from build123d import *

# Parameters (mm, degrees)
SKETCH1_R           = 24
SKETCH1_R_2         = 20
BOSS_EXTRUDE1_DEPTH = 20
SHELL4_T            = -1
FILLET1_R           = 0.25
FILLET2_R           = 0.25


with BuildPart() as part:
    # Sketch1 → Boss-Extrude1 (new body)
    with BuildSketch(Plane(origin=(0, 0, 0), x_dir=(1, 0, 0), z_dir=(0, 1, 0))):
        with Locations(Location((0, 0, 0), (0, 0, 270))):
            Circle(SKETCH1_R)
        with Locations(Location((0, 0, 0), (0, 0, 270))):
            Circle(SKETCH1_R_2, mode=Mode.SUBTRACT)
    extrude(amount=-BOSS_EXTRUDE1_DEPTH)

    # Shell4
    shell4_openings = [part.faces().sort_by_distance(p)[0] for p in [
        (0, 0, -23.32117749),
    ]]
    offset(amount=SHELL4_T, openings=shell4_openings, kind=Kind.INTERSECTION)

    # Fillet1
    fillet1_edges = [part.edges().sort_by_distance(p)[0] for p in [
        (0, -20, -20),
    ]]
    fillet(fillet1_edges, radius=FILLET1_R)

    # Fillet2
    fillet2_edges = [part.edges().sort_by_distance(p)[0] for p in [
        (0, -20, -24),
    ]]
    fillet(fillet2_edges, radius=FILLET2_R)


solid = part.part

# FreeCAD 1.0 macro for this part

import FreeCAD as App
import Part
import Sketcher


def edges_at(feature, points):
    """Names of the edges that pass closest to the given points."""
    edges = feature.Shape.Edges
    near = lambda p: min(range(len(edges)), key=lambda i: edges[i].distToShape(Part.Vertex(*p))[0])
    return sorted({f"Edge{near(p) + 1}" for p in points})


def faces_at(feature, points):
    """Names of the faces that lie closest to the given points."""
    faces = feature.Shape.Faces
    near = lambda p: min(range(len(faces)), key=lambda i: faces[i].distToShape(Part.Vertex(*p))[0])
    return sorted({f"Face{near(p) + 1}" for p in points})

doc = App.newDocument("Part")
body = doc.addObject("PartDesign::Body", "Body")

sketch1 = doc.addObject("Sketcher::SketchObject", "Sketch")
body.addObject(sketch1)
sketch1.AttachmentSupport = (doc.XZ_Plane, [""])
sketch1.MapMode = "FlatFace"
sketch1.addGeometry([
    Part.Circle(App.Vector(0, 0, 0), App.Vector(0, 0, 1), 24),
    Part.Circle(App.Vector(0, 0, 0), App.Vector(0, 0, 1), 20),
], False)
sketch1.addConstraint([
    Sketcher.Constraint("Coincident", 0, 3, -1, 1),
    Sketcher.Constraint("Coincident", 1, 3, -1, 1),
    Sketcher.Constraint("Diameter", 0, 48.0),
    Sketcher.Constraint("Diameter", 1, 40.0),
])
pad1 = doc.addObject("PartDesign::Pad", "Pad")
body.addObject(pad1)
pad1.Profile = sketch1
pad1.Length = 20
doc.recompute()

thickness = doc.addObject("PartDesign::Thickness", "Thickness")
body.addObject(thickness)
thickness.Base = (pad1, faces_at(pad1, [(0, 0, -22.56)]))
thickness.Value = 1
thickness.Reversed = True
thickness.Join = "Intersection"
doc.recompute()

fillet = doc.addObject("PartDesign::Fillet", "Fillet")
body.addObject(fillet)
fillet.Base = (thickness, edges_at(thickness, [(0, -20, -20)]))
fillet.Radius = 0.25
doc.recompute()

fillet2 = doc.addObject("PartDesign::Fillet", "Fillet001")
body.addObject(fillet2)
fillet2.Base = (fillet, edges_at(fillet, [(0, -20, -24)]))
fillet2.Radius = 0.25

doc.recompute()
